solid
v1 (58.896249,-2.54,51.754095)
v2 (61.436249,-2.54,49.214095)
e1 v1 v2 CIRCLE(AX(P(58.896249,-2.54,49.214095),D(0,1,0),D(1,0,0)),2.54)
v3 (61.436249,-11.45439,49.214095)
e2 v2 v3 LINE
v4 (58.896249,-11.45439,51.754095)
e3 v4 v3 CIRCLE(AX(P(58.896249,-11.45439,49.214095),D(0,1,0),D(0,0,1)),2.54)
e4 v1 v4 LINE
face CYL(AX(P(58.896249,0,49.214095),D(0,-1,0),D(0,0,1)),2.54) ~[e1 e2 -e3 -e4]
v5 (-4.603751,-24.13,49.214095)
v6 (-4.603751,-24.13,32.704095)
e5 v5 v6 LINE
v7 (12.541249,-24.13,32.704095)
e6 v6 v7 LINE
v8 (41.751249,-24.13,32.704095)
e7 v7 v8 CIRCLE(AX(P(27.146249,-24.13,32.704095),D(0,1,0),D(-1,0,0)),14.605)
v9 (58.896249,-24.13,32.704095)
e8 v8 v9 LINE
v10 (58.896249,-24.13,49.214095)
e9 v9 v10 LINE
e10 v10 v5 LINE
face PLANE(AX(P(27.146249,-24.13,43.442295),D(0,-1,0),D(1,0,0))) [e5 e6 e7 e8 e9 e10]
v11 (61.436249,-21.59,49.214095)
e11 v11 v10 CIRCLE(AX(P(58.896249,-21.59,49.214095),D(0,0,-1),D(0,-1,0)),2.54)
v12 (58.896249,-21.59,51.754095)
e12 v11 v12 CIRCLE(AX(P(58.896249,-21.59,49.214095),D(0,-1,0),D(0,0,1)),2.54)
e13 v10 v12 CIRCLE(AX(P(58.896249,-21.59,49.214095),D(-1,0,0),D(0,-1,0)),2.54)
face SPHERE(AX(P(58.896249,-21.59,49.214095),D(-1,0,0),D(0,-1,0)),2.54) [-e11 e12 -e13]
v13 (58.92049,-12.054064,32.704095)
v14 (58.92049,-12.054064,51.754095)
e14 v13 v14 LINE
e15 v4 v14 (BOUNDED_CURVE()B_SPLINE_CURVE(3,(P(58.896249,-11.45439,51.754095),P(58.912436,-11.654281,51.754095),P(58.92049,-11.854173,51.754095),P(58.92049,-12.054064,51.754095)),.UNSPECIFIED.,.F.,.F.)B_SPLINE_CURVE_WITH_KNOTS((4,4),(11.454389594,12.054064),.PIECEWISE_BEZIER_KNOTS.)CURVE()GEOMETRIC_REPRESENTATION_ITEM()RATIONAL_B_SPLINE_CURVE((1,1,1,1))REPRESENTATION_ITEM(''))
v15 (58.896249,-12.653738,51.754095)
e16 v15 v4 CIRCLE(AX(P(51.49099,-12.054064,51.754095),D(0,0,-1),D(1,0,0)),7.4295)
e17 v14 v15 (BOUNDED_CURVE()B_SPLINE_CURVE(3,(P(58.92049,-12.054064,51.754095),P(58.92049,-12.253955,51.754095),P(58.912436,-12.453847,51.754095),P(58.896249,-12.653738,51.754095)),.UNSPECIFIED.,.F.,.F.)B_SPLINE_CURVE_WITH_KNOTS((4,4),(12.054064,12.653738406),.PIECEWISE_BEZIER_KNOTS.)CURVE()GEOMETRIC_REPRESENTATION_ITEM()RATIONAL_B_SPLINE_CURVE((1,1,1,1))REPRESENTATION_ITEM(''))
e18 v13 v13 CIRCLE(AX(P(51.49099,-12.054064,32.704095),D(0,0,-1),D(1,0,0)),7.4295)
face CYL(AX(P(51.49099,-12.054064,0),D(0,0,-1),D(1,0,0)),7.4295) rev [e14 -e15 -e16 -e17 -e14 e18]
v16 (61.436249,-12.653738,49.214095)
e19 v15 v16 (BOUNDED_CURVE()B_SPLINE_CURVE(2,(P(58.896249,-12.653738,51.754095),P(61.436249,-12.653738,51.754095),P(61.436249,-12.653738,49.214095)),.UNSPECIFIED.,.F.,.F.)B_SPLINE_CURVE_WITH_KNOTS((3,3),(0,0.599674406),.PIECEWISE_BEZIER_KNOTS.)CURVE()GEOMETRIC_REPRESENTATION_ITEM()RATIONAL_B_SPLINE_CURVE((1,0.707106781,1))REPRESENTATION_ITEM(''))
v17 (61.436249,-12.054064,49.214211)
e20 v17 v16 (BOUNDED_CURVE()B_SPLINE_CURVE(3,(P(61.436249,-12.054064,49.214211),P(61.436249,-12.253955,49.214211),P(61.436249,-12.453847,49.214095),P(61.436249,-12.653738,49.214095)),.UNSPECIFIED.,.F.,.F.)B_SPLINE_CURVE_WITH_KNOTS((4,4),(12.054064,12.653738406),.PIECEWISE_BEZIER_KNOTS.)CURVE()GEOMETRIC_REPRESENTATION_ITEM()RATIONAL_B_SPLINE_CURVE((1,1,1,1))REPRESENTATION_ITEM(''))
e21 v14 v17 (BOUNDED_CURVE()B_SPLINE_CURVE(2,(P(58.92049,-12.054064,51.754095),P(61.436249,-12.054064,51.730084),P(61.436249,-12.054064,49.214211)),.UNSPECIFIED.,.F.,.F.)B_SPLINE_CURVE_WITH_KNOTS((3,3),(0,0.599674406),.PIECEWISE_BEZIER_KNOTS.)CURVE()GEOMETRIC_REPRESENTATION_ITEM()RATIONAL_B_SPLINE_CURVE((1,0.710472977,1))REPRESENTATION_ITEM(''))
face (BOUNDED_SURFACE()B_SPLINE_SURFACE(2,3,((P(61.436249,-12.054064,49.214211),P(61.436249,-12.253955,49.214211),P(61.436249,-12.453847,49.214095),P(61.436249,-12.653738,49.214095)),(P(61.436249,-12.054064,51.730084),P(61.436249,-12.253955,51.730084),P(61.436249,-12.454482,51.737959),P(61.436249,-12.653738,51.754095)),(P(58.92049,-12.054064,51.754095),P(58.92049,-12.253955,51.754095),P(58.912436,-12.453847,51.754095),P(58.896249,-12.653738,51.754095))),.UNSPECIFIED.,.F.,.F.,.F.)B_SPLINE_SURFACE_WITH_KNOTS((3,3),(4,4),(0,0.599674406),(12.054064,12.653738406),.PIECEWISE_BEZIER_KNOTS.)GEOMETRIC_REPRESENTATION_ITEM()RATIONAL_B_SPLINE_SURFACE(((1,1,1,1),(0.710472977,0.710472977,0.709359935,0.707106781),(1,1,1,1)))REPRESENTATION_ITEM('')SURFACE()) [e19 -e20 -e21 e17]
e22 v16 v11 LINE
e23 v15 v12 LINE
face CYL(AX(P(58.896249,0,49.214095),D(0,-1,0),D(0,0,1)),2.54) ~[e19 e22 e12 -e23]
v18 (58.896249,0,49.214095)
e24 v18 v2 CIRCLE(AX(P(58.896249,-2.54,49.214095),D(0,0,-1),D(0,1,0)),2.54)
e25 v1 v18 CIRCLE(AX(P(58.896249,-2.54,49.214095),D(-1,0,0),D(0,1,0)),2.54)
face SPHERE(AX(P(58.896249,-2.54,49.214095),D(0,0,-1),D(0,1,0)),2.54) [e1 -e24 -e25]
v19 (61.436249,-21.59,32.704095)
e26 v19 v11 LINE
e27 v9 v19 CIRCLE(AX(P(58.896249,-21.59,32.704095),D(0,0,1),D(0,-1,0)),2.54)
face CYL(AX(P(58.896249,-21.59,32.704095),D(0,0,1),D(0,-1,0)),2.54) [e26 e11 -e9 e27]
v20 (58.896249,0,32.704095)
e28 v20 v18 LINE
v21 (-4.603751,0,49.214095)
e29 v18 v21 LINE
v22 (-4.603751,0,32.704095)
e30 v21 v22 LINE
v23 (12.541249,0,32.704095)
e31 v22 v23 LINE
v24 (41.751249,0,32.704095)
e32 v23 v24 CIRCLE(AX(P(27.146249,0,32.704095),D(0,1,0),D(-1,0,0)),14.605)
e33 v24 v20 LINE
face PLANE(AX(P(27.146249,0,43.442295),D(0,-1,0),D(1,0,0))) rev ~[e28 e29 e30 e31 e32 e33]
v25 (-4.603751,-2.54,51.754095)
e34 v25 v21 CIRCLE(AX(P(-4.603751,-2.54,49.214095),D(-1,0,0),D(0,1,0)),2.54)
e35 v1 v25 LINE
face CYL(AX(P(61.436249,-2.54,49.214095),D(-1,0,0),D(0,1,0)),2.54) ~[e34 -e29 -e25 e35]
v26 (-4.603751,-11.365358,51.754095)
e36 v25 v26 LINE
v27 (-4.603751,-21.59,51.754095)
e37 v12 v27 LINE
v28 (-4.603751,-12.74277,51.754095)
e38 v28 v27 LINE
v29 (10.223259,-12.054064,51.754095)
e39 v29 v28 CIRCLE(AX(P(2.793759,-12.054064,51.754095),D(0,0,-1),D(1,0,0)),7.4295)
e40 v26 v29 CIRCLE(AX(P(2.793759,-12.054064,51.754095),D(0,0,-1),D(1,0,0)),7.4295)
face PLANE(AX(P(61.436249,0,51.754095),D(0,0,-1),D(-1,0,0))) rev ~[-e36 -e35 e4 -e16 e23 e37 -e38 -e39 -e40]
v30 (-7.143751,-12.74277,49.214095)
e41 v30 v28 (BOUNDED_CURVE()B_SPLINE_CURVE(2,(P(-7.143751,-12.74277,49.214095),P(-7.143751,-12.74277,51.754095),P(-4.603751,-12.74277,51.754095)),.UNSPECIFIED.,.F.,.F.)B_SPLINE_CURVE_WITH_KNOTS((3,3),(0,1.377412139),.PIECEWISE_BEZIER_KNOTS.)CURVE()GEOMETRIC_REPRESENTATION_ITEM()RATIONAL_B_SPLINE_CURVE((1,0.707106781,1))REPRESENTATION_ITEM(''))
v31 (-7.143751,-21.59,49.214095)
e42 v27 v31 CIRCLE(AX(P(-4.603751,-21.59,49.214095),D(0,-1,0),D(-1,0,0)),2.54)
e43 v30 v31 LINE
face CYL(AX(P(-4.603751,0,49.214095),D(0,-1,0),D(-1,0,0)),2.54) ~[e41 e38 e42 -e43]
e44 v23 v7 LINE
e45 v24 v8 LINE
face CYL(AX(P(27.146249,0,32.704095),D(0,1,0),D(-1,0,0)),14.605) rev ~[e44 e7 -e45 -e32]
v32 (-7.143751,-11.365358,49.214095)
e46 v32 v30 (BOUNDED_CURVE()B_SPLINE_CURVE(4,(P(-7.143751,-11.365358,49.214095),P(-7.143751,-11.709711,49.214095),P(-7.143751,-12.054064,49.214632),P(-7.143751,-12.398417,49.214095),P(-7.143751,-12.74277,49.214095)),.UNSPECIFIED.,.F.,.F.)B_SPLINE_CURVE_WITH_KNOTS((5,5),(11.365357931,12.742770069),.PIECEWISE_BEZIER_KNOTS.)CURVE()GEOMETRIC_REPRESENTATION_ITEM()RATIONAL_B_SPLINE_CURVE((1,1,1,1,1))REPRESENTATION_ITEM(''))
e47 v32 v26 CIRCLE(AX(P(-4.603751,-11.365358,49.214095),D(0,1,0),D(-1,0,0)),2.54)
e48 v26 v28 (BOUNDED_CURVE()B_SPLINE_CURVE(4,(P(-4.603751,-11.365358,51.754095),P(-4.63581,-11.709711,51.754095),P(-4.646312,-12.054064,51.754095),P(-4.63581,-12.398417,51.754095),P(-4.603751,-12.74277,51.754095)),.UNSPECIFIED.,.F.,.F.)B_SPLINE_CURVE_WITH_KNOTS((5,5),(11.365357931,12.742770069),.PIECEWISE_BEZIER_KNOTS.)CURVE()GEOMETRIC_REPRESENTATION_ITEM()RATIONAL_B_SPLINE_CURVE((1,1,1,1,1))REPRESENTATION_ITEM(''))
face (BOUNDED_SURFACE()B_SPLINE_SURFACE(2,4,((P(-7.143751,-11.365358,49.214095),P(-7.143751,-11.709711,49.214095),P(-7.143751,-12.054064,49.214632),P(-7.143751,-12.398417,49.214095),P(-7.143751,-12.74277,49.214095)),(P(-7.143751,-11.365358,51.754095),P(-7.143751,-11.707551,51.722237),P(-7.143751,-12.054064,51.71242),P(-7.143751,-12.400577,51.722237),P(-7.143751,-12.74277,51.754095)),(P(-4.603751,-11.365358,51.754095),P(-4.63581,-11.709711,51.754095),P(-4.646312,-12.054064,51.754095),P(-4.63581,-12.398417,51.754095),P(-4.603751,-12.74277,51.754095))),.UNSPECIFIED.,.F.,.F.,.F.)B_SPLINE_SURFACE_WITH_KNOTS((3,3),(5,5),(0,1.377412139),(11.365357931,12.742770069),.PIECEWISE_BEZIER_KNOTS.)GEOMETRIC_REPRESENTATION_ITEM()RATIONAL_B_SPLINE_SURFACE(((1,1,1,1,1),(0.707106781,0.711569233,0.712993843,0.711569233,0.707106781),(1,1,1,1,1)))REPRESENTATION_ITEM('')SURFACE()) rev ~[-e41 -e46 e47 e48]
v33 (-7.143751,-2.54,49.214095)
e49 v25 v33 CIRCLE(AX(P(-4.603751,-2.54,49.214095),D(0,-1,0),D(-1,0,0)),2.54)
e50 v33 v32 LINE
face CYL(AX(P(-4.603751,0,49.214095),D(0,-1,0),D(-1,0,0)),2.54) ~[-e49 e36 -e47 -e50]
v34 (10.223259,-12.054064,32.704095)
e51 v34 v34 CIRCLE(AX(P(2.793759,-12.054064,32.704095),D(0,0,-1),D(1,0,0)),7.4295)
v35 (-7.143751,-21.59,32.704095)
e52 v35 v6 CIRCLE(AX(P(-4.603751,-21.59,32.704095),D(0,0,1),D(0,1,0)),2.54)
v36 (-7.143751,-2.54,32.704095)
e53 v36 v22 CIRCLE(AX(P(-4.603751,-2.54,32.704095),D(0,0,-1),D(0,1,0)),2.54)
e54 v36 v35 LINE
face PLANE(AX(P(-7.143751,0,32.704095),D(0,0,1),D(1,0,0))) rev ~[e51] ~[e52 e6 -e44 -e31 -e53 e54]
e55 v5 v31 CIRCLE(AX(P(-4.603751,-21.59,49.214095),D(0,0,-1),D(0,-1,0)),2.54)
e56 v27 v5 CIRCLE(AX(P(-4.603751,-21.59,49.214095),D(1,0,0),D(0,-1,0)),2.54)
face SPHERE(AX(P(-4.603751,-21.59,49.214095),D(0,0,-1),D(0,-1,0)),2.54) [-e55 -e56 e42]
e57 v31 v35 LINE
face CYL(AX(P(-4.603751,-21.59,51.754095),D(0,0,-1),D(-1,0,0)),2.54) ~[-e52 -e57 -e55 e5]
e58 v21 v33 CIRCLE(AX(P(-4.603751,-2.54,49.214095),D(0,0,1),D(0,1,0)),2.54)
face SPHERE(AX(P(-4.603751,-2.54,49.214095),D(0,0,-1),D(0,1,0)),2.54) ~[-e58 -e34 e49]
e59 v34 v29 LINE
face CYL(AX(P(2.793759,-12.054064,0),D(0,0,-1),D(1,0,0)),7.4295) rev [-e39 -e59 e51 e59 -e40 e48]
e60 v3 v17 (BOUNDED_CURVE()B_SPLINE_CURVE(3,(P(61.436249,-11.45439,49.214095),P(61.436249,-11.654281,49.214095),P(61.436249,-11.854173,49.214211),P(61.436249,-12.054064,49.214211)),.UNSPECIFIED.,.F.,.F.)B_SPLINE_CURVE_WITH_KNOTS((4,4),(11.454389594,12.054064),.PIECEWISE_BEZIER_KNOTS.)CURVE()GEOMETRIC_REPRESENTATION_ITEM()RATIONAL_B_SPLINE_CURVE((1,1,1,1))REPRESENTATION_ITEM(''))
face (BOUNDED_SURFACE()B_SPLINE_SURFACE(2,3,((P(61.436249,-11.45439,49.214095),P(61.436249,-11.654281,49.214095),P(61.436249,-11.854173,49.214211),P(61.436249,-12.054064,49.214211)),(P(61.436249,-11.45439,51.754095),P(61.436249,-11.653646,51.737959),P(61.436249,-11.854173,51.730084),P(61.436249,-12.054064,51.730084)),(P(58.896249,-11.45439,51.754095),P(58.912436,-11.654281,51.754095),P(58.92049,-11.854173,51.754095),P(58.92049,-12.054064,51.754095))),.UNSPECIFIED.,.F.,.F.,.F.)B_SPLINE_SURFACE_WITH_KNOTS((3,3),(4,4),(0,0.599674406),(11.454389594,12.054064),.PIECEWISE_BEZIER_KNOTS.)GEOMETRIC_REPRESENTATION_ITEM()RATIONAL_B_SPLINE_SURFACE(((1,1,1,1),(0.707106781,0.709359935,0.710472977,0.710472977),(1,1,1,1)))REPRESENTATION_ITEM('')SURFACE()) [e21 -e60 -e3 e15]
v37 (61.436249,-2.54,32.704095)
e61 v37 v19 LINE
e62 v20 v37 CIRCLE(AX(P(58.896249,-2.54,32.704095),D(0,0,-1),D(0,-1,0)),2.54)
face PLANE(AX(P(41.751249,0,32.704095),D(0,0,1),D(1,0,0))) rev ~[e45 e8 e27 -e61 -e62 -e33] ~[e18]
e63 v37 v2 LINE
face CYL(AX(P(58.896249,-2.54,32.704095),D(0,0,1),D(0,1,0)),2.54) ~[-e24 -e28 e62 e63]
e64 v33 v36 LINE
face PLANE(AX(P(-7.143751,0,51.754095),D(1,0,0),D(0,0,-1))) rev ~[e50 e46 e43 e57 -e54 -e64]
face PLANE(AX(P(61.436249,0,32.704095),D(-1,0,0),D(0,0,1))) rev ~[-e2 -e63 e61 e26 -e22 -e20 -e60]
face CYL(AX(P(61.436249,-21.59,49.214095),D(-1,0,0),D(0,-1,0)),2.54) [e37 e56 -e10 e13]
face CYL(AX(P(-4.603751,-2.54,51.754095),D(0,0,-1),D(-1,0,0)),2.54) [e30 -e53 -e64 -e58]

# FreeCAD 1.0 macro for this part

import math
import FreeCAD as App
import Part
import Sketcher
from FreeCAD import Vector
Q = App.Units.Quantity


def edges_at(feature, points):
    """Names of the edges that pass closest to the given points."""
    edges = feature.Shape.Edges
    near = lambda p: min(range(len(edges)), key=lambda i: edges[i].distToShape(Part.Vertex(*p))[0])
    return sorted({f"Edge{near(p) + 1}" for p in points})

doc = App.newDocument("Part")
body = doc.addObject("PartDesign::Body", "Body")

# Sketch on XZ plane
sketch1 = body.newObject("Sketcher::SketchObject", "Sketch")
sketch1.AttachmentSupport = (doc.getObject("XZ_Plane"), [""])
sketch1.MapMode = "FlatFace"
sketch1.addGeometry(Part.LineSegment(Vector(-7, 33, 0), Vector(13, 33, 0)), False)
sketch1.addGeometry(Part.ArcOfCircle(Part.Circle(Vector(27, 33, 0), Vector(0, 0, 1), 15), math.radians(0), math.radians(180)), False)
sketch1.addGeometry(Part.LineSegment(Vector(42, 33, 0), Vector(61, 33, 0)), False)
sketch1.addGeometry(Part.LineSegment(Vector(61, 33, 0), Vector(61, 52, 0)), False)
sketch1.addGeometry(Part.LineSegment(Vector(61, 52, 0), Vector(-7, 52, 0)), False)
sketch1.addGeometry(Part.LineSegment(Vector(-7, 52, 0), Vector(-7, 33, 0)), False)
sketch1.addConstraint(Sketcher.Constraint("Coincident", 0, 2, 1, 2))
sketch1.addConstraint(Sketcher.Constraint("Coincident", 1, 1, 2, 1))
sketch1.addConstraint(Sketcher.Constraint("Coincident", 2, 2, 3, 1))
sketch1.addConstraint(Sketcher.Constraint("Coincident", 3, 2, 4, 1))
sketch1.addConstraint(Sketcher.Constraint("Coincident", 4, 2, 5, 1))
sketch1.addConstraint(Sketcher.Constraint("Coincident", 5, 2, 0, 1))
sketch1.addConstraint(Sketcher.Constraint("Horizontal", 0))
sketch1.addConstraint(Sketcher.Constraint("Horizontal", 2))
sketch1.addConstraint(Sketcher.Constraint("Vertical", 3))
sketch1.addConstraint(Sketcher.Constraint("Horizontal", 4))
sketch1.addConstraint(Sketcher.Constraint("Vertical", 5))
sketch1.addConstraint(Sketcher.Constraint("Horizontal", 1, 3, 0, 2))
sketch1.addConstraint(Sketcher.Constraint("Horizontal", 0, 2, 1, 1))
sketch1.addConstraint(Sketcher.Constraint("Equal", 0, 2))
sketch1.addConstraint(Sketcher.Constraint("DistanceX", 4, 2, 4, 1, Q("2.7 in")))
sketch1.addConstraint(Sketcher.Constraint("Radius", 1, Q("0.575 in")))
sketch1.addConstraint(Sketcher.Constraint("DistanceY", 3, 1, 3, 2, Q("0.75 in")))
sketch1.addConstraint(Sketcher.Constraint("DistanceX", 4, 2, -1, 1, Q("0.28125 in")))
sketch1.addConstraint(Sketcher.Constraint("DistanceY", -1, 1, 1, 3, 32.704095))
pad1 = body.newObject("PartDesign::Pad", "Pad")
pad1.Profile = sketch1
pad1.Length = Q("0.95 in")

# Sketch on XY plane
sketch2 = body.newObject("Sketcher::SketchObject", "Sketch001")
sketch2.AttachmentSupport = (doc.getObject("XY_Plane"), [""])
sketch2.MapMode = "FlatFace"
sketch2.addGeometry(Part.Circle(Vector(51, -12, 0), Vector(0, 0, 1), 7), False)
sketch2.addGeometry(Part.Circle(Vector(3, -12, 0), Vector(0, 0, 1), 7), False)
sketch2.addConstraint(Sketcher.Constraint("Equal", 0, 1))
sketch2.addConstraint(Sketcher.Constraint("Horizontal", 0, 3, 1, 3))
sketch2.addConstraint(Sketcher.Constraint("Diameter", 0, Q("0.585 in")))
sketch2.addConstraint(Sketcher.Constraint("DistanceX", -1, 1, 0, 3, 51.49099))
sketch2.addConstraint(Sketcher.Constraint("DistanceX", -1, 1, 1, 3, 2.793759))
sketch2.addConstraint(Sketcher.Constraint("DistanceY", 0, 3, -1, 1, 12.054064))
pocket1 = body.newObject("PartDesign::Pocket", "Pocket")
pocket1.Profile = sketch2
pocket1.Length = Q("2.15 in")
pocket1.Reversed = True
doc.recompute()

fillet = body.newObject("PartDesign::Fillet", "Fillet")
fillet.Base = (pocket1, edges_at(pocket1, [
    (61.436, 0, 42.229),
    (-7.144, 0, 42.229),
    (-7.144, -24.13, 42.229),
    (27.146, -24.13, 51.754),
    (27.146, 0, 51.754),
    (61.436, -24.13, 42.229),
    (-7.144, -12.065, 51.754),
    (61.436, -12.065, 51.754),
]))
fillet.Radius = Q("0.1 in")

doc.recompute()
